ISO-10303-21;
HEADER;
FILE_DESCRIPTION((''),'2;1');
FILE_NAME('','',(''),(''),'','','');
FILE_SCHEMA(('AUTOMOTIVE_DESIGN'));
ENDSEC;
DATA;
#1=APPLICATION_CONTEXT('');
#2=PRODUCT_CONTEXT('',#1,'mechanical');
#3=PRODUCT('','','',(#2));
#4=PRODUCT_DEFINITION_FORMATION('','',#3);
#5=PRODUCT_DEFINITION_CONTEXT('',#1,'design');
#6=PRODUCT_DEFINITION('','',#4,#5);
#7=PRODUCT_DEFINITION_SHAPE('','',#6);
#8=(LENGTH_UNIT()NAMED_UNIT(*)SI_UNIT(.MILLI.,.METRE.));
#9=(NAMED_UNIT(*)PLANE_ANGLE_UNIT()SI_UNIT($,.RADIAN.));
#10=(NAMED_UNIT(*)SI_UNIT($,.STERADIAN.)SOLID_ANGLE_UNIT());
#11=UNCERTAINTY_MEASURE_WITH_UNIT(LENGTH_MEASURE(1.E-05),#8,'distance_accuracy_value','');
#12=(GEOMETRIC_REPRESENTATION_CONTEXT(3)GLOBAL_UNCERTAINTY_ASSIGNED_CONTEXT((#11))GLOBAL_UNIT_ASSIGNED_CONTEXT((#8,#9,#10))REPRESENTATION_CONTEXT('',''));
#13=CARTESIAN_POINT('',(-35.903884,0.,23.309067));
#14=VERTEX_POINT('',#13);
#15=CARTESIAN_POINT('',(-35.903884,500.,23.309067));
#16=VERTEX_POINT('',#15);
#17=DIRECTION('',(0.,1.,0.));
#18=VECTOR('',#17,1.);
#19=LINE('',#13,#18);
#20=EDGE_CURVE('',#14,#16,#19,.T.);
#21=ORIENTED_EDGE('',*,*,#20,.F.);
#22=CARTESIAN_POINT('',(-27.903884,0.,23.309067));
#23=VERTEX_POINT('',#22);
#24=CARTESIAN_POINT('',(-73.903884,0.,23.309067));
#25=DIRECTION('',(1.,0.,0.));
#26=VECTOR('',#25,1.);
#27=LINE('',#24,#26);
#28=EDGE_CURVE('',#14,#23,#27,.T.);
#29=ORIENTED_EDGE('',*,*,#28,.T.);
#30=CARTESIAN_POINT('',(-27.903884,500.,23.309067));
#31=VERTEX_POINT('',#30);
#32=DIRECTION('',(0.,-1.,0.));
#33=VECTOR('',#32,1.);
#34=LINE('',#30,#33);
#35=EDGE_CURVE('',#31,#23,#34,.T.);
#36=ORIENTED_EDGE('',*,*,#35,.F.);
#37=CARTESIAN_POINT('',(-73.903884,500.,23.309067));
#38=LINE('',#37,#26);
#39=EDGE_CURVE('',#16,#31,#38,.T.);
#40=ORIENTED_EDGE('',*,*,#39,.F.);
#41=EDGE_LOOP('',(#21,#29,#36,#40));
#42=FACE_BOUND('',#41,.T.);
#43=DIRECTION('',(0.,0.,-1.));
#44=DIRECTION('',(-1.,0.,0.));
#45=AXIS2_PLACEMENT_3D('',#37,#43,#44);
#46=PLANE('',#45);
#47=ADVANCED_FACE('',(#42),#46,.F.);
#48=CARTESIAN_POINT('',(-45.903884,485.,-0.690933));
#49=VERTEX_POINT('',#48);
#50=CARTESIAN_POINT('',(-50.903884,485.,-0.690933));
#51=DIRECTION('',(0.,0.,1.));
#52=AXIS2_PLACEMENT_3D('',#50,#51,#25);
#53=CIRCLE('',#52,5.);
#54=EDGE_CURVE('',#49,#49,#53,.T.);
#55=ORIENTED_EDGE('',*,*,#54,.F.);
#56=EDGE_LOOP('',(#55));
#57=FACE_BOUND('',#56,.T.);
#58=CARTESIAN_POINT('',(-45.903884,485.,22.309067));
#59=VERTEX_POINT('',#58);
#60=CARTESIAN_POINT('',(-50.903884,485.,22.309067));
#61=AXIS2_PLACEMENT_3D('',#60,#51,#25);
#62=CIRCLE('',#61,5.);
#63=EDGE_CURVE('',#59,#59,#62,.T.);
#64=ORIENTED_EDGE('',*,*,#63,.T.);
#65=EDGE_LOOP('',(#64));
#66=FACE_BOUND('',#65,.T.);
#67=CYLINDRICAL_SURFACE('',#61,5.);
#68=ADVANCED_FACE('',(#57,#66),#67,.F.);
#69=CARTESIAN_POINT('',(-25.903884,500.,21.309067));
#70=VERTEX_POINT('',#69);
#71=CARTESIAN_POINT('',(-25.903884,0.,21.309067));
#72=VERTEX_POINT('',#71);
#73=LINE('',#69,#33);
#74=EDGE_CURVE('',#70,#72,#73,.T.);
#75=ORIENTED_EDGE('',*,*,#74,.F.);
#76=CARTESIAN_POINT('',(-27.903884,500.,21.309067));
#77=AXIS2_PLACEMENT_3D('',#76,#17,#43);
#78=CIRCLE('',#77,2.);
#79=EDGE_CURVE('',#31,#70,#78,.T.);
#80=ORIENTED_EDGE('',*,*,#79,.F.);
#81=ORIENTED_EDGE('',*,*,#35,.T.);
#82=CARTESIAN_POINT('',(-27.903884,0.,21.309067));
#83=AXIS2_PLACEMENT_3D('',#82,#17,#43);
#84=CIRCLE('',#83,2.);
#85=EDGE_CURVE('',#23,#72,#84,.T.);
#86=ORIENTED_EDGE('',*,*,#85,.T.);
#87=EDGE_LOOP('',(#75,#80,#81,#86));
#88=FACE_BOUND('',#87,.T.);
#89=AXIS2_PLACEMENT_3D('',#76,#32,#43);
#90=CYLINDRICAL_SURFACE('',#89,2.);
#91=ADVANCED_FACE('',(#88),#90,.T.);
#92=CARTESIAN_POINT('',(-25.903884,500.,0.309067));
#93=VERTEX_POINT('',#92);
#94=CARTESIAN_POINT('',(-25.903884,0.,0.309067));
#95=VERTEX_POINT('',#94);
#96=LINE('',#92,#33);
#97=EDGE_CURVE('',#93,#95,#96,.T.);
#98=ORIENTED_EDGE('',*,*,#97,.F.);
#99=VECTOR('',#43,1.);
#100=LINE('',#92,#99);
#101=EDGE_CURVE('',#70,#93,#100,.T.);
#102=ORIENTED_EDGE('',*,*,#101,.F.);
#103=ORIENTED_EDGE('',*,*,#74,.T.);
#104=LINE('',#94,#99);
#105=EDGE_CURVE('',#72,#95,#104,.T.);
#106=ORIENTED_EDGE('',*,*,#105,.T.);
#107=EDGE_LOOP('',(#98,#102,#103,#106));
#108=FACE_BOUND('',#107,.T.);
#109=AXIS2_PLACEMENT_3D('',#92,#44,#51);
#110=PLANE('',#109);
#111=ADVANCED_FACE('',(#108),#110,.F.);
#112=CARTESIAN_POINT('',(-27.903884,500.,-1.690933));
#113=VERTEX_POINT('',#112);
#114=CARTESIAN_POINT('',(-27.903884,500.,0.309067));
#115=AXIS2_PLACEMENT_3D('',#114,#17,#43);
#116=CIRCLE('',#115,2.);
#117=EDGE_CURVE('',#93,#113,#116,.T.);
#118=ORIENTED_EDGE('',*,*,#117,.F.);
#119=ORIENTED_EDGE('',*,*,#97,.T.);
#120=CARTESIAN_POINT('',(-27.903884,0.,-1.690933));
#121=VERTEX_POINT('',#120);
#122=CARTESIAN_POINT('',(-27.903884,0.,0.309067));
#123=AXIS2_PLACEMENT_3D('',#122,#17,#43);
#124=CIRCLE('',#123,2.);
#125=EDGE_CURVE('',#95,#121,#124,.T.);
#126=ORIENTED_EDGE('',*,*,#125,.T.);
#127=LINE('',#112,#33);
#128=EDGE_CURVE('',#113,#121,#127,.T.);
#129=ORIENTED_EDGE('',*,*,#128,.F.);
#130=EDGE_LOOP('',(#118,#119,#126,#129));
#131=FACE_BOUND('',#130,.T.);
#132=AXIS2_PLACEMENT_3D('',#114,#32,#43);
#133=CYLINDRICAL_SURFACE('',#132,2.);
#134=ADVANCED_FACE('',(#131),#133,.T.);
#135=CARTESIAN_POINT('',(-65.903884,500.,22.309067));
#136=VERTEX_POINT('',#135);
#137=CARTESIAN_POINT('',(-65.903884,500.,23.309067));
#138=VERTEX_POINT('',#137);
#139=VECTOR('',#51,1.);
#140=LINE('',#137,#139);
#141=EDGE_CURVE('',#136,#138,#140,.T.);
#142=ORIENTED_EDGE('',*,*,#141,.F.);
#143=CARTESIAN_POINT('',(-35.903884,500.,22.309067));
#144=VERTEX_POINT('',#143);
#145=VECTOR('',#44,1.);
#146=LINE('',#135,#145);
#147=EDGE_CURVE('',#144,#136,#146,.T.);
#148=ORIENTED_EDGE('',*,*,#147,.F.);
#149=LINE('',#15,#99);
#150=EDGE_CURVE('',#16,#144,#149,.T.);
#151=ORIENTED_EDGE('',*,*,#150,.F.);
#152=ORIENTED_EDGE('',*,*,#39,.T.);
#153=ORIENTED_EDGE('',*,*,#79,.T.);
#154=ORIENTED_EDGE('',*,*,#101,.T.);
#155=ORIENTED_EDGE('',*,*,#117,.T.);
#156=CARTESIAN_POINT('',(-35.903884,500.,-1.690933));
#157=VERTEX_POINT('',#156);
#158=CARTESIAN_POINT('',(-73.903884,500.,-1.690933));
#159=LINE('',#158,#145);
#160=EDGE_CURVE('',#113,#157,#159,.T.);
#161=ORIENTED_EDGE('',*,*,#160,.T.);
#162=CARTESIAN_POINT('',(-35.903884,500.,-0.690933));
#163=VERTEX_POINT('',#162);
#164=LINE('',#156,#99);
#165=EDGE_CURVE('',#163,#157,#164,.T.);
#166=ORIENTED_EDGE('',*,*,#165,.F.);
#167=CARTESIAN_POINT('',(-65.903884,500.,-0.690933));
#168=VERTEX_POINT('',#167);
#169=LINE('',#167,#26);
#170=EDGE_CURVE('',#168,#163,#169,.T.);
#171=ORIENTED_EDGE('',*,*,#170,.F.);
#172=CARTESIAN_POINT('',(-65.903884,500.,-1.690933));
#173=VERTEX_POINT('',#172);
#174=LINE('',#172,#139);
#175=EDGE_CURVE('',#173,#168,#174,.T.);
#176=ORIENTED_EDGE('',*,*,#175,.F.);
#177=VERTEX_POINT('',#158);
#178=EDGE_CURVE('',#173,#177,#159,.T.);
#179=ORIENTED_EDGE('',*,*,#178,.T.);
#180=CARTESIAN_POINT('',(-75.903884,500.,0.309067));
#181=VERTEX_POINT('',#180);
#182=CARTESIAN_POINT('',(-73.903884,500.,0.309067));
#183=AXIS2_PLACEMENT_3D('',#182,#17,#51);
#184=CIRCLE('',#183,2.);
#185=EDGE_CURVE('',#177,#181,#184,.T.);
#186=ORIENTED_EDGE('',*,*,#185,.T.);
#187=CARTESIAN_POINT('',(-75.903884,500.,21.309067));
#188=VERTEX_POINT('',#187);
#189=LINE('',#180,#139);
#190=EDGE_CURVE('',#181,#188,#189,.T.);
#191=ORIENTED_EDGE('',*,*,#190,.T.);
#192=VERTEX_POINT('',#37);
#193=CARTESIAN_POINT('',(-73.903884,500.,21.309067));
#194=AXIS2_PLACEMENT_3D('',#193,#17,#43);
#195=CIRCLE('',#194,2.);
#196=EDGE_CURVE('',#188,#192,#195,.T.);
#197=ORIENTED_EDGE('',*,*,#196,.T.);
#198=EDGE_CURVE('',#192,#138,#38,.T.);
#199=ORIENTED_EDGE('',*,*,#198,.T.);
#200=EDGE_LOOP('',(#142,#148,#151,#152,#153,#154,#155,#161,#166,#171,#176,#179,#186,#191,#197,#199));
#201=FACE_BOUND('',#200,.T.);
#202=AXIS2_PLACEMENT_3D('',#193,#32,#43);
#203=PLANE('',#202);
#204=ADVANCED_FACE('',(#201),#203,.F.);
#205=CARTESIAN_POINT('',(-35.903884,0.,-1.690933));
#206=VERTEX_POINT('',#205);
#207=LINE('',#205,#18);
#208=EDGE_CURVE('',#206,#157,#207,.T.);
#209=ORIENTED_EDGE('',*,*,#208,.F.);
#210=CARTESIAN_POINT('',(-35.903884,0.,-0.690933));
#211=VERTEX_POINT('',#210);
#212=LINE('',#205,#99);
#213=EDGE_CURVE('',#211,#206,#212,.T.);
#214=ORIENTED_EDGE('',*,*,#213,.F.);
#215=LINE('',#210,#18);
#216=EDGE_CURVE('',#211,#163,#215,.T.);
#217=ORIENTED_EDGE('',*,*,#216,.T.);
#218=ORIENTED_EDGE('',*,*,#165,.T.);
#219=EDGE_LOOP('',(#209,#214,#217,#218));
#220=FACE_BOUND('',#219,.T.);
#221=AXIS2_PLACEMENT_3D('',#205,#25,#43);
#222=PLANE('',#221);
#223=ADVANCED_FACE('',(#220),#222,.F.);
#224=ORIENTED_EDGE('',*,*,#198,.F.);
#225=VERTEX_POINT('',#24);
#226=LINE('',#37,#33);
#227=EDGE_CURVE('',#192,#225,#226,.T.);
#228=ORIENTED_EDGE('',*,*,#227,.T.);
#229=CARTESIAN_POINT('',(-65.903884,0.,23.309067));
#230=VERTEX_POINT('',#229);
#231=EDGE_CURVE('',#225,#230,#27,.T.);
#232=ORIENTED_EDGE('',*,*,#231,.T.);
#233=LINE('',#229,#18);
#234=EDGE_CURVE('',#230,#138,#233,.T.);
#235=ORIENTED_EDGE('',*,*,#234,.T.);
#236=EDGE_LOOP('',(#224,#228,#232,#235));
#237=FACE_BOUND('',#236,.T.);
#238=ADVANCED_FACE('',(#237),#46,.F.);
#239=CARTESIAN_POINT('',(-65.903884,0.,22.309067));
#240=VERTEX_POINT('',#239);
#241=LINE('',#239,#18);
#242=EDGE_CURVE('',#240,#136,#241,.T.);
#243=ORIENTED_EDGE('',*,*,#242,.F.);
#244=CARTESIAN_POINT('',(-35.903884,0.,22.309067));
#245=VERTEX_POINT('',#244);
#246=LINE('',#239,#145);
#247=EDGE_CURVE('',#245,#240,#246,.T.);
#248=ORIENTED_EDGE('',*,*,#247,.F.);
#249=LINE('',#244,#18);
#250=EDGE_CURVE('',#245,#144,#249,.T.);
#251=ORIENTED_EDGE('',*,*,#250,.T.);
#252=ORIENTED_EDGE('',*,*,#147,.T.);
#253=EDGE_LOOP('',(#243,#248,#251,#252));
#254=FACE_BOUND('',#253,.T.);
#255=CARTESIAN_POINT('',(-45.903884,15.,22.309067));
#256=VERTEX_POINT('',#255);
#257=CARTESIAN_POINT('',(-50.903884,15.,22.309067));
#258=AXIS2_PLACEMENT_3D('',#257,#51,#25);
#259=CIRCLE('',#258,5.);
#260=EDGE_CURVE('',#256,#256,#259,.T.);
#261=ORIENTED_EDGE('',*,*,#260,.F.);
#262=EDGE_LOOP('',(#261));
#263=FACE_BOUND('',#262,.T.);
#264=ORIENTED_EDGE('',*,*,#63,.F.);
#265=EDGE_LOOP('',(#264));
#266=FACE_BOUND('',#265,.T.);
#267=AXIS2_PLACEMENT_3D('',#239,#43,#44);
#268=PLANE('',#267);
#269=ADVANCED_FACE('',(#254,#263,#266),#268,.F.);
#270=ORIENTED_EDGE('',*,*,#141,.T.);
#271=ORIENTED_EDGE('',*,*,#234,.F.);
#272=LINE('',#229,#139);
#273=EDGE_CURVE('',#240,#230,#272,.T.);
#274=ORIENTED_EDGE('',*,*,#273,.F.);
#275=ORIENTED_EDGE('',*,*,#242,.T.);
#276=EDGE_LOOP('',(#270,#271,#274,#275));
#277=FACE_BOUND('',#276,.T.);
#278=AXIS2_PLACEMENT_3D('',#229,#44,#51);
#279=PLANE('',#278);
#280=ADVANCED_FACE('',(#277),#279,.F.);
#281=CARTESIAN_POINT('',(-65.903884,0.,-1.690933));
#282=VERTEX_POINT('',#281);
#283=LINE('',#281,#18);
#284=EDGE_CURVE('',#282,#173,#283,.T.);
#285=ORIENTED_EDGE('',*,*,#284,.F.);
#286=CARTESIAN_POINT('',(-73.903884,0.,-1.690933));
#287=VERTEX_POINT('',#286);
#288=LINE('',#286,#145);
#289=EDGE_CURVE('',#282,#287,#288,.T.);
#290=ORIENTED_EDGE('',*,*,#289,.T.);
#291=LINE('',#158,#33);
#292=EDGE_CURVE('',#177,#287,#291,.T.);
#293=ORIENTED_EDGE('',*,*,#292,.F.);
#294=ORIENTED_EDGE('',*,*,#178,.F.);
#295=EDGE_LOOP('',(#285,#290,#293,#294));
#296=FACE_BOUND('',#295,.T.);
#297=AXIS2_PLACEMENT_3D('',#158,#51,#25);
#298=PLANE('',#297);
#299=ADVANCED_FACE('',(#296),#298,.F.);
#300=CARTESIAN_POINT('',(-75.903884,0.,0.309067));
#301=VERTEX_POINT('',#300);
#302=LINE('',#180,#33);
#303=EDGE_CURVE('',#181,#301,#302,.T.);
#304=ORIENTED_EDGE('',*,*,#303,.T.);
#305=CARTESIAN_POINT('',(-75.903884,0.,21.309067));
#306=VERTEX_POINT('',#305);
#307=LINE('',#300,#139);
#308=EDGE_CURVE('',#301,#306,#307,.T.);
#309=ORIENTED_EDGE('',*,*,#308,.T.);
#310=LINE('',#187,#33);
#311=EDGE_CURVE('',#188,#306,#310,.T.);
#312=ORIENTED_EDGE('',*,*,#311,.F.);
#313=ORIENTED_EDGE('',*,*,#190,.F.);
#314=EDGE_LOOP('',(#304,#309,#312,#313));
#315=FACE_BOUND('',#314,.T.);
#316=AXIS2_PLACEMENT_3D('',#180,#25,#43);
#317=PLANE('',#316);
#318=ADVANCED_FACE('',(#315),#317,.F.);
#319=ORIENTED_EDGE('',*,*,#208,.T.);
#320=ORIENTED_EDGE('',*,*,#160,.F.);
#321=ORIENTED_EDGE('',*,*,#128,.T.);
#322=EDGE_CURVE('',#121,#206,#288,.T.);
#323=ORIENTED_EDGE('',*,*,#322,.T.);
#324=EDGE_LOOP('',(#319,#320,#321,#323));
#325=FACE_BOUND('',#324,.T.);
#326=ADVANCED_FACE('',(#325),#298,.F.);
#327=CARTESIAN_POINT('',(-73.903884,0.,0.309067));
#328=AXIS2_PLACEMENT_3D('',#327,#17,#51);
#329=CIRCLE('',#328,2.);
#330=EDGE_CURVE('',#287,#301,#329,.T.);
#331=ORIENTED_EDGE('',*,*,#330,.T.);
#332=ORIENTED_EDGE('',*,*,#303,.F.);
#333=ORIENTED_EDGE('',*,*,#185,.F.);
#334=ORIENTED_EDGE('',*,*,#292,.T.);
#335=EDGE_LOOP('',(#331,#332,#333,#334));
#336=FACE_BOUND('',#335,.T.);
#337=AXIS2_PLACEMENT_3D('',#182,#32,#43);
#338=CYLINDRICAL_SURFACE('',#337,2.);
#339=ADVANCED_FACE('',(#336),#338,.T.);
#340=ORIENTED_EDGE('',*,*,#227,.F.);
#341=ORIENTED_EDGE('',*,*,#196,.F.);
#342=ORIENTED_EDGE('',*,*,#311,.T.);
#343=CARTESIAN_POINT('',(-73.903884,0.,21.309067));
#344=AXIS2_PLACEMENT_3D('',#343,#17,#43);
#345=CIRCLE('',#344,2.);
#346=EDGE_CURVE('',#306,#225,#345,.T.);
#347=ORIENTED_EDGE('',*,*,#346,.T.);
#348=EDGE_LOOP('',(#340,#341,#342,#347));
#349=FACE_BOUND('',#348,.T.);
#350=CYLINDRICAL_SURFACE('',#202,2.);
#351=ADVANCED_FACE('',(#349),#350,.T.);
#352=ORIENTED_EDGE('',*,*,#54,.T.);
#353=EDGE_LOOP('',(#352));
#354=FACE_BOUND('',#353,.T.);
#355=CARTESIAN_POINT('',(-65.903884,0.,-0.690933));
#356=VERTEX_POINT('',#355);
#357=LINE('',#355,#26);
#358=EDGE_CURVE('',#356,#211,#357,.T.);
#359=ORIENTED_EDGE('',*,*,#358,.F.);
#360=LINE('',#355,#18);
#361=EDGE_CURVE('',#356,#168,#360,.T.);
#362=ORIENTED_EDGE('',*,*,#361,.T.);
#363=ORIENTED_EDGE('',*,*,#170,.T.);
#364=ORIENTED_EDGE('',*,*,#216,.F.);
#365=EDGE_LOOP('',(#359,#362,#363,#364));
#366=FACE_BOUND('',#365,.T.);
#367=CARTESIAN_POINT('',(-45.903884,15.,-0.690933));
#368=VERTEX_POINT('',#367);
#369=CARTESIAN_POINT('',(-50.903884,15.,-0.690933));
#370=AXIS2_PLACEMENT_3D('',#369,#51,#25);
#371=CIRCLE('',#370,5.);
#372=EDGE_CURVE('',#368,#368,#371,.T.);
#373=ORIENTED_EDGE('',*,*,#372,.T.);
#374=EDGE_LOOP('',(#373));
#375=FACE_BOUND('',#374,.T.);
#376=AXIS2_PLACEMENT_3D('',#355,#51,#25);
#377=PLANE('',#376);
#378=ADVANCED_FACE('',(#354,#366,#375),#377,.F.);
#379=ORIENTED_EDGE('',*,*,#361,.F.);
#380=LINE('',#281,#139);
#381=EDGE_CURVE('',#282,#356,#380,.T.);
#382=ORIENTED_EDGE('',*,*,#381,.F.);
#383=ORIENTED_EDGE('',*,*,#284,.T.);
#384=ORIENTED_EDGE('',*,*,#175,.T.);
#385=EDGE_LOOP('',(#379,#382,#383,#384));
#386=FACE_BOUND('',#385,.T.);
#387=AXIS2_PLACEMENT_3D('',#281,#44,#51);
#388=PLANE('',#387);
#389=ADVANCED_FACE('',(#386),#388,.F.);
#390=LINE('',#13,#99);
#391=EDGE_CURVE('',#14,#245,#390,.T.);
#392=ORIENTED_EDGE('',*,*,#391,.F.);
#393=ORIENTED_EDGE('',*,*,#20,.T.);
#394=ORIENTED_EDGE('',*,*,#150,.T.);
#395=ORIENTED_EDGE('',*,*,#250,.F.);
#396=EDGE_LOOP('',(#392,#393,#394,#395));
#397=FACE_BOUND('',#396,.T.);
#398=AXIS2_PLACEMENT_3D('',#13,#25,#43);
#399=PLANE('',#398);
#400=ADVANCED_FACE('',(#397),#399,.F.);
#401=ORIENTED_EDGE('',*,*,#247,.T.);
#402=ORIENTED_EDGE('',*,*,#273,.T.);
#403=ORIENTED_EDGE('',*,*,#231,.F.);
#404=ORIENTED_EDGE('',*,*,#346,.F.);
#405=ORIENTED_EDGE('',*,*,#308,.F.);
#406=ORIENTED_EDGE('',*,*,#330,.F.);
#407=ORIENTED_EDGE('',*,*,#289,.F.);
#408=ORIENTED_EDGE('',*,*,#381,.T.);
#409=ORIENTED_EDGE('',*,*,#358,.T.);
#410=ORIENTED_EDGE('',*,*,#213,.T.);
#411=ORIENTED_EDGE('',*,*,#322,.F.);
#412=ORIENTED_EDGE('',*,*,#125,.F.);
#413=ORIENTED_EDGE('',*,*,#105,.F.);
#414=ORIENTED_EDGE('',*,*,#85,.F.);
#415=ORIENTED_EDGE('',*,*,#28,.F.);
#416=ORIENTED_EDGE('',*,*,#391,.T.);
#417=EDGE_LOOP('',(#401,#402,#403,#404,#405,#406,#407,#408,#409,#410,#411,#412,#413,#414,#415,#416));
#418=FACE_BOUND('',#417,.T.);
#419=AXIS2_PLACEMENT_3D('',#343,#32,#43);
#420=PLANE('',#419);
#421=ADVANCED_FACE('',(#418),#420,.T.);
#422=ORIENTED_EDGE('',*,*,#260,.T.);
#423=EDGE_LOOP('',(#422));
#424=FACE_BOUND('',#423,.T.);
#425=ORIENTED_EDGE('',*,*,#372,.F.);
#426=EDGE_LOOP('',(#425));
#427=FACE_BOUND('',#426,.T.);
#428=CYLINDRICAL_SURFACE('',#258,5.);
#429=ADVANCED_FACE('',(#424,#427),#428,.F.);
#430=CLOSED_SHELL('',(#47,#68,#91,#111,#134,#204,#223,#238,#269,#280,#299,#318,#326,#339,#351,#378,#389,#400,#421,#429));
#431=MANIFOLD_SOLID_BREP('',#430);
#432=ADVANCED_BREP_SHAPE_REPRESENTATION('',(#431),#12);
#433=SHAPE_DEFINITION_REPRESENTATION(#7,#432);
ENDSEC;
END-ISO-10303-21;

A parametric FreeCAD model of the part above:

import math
import FreeCAD as App
import Part
import Sketcher
Q = App.Units.Quantity


def add_polygon(sketch, points):
    """Adds a closed chain of lines whose ends are joined by coincident constraints."""
    first, n = sketch.GeometryCount, len(points)
    for a, b in zip(points, points[1:] + points[:1]):
        sketch.addGeometry(Part.LineSegment(App.Vector(*a, 0), App.Vector(*b, 0)), False)
    for i in range(n):
        sketch.addConstraint(Sketcher.Constraint("Coincident", first + i, 2, first + (i + 1) % n, 1))

doc = App.newDocument("Part")
body = doc.addObject("PartDesign::Body", "Body")

# Sketch on XZ plane
sketch1 = body.newObject("Sketcher::SketchObject", "Sketch")
sketch1.AttachmentSupport = (doc.getObject("XZ_Plane"), [""])
sketch1.MapMode = "FlatFace"
sketch1.addGeometry(Part.LineSegment(App.Vector(-27.9, -1.7, 0), App.Vector(-73.9, -1.7, 0)), False)
sketch1.addGeometry(Part.ArcOfCircle(Part.Circle(App.Vector(-73.9, 0.3, 0), App.Vector(0, 0, 1), 2), math.radians(180), math.radians(270)), False)
sketch1.addGeometry(Part.LineSegment(App.Vector(-75.9, 0.3, 0), App.Vector(-75.9, 21.3, 0)), False)
sketch1.addGeometry(Part.ArcOfCircle(Part.Circle(App.Vector(-73.9, 21.3, 0), App.Vector(0, 0, 1), 2), math.radians(90), math.radians(180)), False)
sketch1.addGeometry(Part.LineSegment(App.Vector(-73.9, 23.3, 0), App.Vector(-27.9, 23.3, 0)), False)
sketch1.addGeometry(Part.ArcOfCircle(Part.Circle(App.Vector(-27.9, 21.3, 0), App.Vector(0, 0, 1), 2), math.radians(0), math.radians(90)), False)
sketch1.addGeometry(Part.LineSegment(App.Vector(-25.9, 21.3, 0), App.Vector(-25.9, 0.3, 0)), False)
sketch1.addGeometry(Part.ArcOfCircle(Part.Circle(App.Vector(-27.9, 0.3, 0), App.Vector(0, 0, 1), 2), math.radians(-90), math.radians(0)), False)
sketch1.addConstraint(Sketcher.Constraint("Tangent", 0, 2, 1, 2))
sketch1.addConstraint(Sketcher.Constraint("Tangent", 1, 1, 2, 1))
sketch1.addConstraint(Sketcher.Constraint("Tangent", 2, 2, 3, 2))
sketch1.addConstraint(Sketcher.Constraint("Tangent", 3, 1, 4, 1))
sketch1.addConstraint(Sketcher.Constraint("Tangent", 4, 2, 5, 2))
sketch1.addConstraint(Sketcher.Constraint("Tangent", 5, 1, 6, 1))
sketch1.addConstraint(Sketcher.Constraint("Tangent", 6, 2, 7, 2))
sketch1.addConstraint(Sketcher.Constraint("Tangent", 7, 1, 0, 1))
sketch1.addConstraint(Sketcher.Constraint("Horizontal", 0))
sketch1.addConstraint(Sketcher.Constraint("Vertical", 2))
sketch1.addConstraint(Sketcher.Constraint("Horizontal", 4))
sketch1.addConstraint(Sketcher.Constraint("Vertical", 6))
sketch1.addConstraint(Sketcher.Constraint("Equal", 1, 3))
sketch1.addConstraint(Sketcher.Constraint("Equal", 3, 5))
sketch1.addConstraint(Sketcher.Constraint("Equal", 5, 7))
sketch1.addConstraint(Sketcher.Constraint("Radius", 1, Q("2 mm")))
sketch1.addConstraint(Sketcher.Constraint("DistanceX", 0, 2, 0, 1, Q("46 mm")))
sketch1.addConstraint(Sketcher.Constraint("DistanceY", 2, 1, 2, 2, Q("21 mm")))
sketch1.addConstraint(Sketcher.Constraint("DistanceX", 1, 3, -1, 1, Q("73.903884 mm")))
sketch1.addConstraint(Sketcher.Constraint("DistanceY", -1, 1, 1, 3, Q("0.309067 mm")))
pad1 = body.newObject("PartDesign::Pad", "Pad")
pad1.Profile = sketch1
pad1.Length = 500
pad1.Reversed = True

# Sketch on XZ plane
sketch2 = body.newObject("Sketcher::SketchObject", "Sketch001")
sketch2.AttachmentSupport = (doc.getObject("XZ_Plane"), [""])
sketch2.MapMode = "FlatFace"
sketch2.AttachmentOffset = App.Placement(App.Vector(0, 0, -500), App.Rotation())
add_polygon(sketch2, [(-65.9, -1.7), (-65.9, -0.7), (-35.9, -0.7), (-35.9, -1.7)])  # lines 0-3
add_polygon(sketch2, [(-65.9, 22.3), (-65.9, 23.3), (-35.9, 23.3), (-35.9, 22.3)])  # lines 4-7
sketch2.addConstraint(Sketcher.Constraint("Vertical", 0))
sketch2.addConstraint(Sketcher.Constraint("Horizontal", 1))
sketch2.addConstraint(Sketcher.Constraint("Vertical", 2))
sketch2.addConstraint(Sketcher.Constraint("Horizontal", 3))
sketch2.addConstraint(Sketcher.Constraint("Vertical", 4))
sketch2.addConstraint(Sketcher.Constraint("Horizontal", 5))
sketch2.addConstraint(Sketcher.Constraint("Vertical", 6))
sketch2.addConstraint(Sketcher.Constraint("Horizontal", 7))
sketch2.addConstraint(Sketcher.Constraint("Vertical", 3, 2, 4, 2))
sketch2.addConstraint(Sketcher.Constraint("Vertical", 2, 2, 5, 2))
sketch2.addConstraint(Sketcher.Constraint("Equal", 2, 4))
sketch2.addConstraint(Sketcher.Constraint("DistanceX", 1, 1, 1, 2, Q("30 mm")))
sketch2.addConstraint(Sketcher.Constraint("DistanceY", 0, 1, 0, 2, Q("1 mm")))
sketch2.addConstraint(Sketcher.Constraint("DistanceY", 0, 2, 4, 2, Q("24 mm")))
sketch2.addConstraint(Sketcher.Constraint("DistanceX", 0, 2, -1, 1, Q("65.903884 mm")))
sketch2.addConstraint(Sketcher.Constraint("DistanceY", 0, 2, -1, 1, Q("0.690933 mm")))
pocket1 = body.newObject("PartDesign::Pocket", "Pocket")
pocket1.Profile = sketch2
pocket1.Length = 500
pocket1.Reversed = True

# Sketch on XY plane
sketch3 = body.newObject("Sketcher::SketchObject", "Sketch002")
sketch3.AttachmentSupport = (doc.getObject("XY_Plane"), [""])
sketch3.MapMode = "FlatFace"
sketch3.AttachmentOffset = App.Placement(App.Vector(0, 0, 22.309067), App.Rotation())
sketch3.addGeometry(Part.Circle(App.Vector(-50.9, 485, 0), App.Vector(0, 0, 1), 4.5), False)
sketch3.addGeometry(Part.Circle(App.Vector(-50.9, 15, 0), App.Vector(0, 0, 1), 4.5), False)
sketch3.addConstraint(Sketcher.Constraint("Equal", 0, 1))
sketch3.addConstraint(Sketcher.Constraint("Vertical", 0, 3, 1, 3))
sketch3.addConstraint(Sketcher.Constraint("Diameter", 0, Q("9 mm")))
sketch3.addConstraint(Sketcher.Constraint("DistanceY", -1, 1, 0, 3, Q("485 mm")))
sketch3.addConstraint(Sketcher.Constraint("DistanceY", -1, 1, 1, 3, Q("15 mm")))
sketch3.addConstraint(Sketcher.Constraint("DistanceX", 0, 3, -1, 1, Q("50.903884 mm")))
doc.recompute()
hole = body.newObject("PartDesign::Hole", "Hole")
hole.Profile = sketch3
hole.ThreadType = "None"
hole.Diameter = 9
hole.DepthType = "Dimension"
hole.Depth = 51.26
hole.DrillPoint = "Angled"
hole.DrillPointAngle = 118
hole.HoleCutType = "Counterbore"
hole.HoleCutDiameter = 10
hole.HoleCutDepth = 45.4

doc.recompute()
